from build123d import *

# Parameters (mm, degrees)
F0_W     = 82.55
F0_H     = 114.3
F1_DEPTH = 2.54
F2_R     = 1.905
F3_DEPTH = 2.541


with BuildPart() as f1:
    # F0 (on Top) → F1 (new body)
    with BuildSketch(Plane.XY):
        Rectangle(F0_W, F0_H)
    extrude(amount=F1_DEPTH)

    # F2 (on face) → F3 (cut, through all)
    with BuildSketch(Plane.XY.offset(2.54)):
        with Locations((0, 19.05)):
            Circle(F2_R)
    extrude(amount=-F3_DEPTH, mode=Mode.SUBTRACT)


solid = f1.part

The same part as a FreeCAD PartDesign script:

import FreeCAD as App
import Part
import Sketcher

V = App.Vector
Q = App.Units.Quantity

doc = App.newDocument("Part")
body = doc.addObject("PartDesign::Body", "Body")

sketch1 = doc.addObject("Sketcher::SketchObject", "Sketch")
body.addObject(sketch1)
sketch1.AttachmentSupport = (doc.XY_Plane, [""])
sketch1.MapMode = "FlatFace"
sketch1.addGeometry([
    Part.LineSegment(V(-41.275, 57.15, 0), V(-41.275, -57.15, 0)),
    Part.LineSegment(V(-41.275, -57.15, 0), V(41.275, -57.15, 0)),
    Part.LineSegment(V(41.275, -57.15, 0), V(41.275, 57.15, 0)),
    Part.LineSegment(V(41.275, 57.15, 0), V(-41.275, 57.15, 0)),
], False)
sketch1.addConstraint([
    Sketcher.Constraint("Coincident", 0, 2, 1, 1),
    Sketcher.Constraint("Coincident", 1, 2, 2, 1),
    Sketcher.Constraint("Coincident", 2, 2, 3, 1),
    Sketcher.Constraint("Coincident", 3, 2, 0, 1),
    Sketcher.Constraint("Vertical", 0),
    Sketcher.Constraint("Horizontal", 1),
    Sketcher.Constraint("Vertical", 2),
    Sketcher.Constraint("Horizontal", 3),
    Sketcher.Constraint("Symmetric", 0, 2, 2, 2, -1, 1),
    Sketcher.Constraint("DistanceY", 0, 2, 0, 1, Q("4.5 in")),
    Sketcher.Constraint("DistanceX", 1, 1, 1, 2, Q("3.25 in")),
])
pad1 = doc.addObject("PartDesign::Pad", "Pad")
body.addObject(pad1)
pad1.Profile = sketch1
pad1.Length = Q("0.1 in")

sketch2 = doc.addObject("Sketcher::SketchObject", "Sketch001")
body.addObject(sketch2)
sketch2.AttachmentSupport = (doc.XY_Plane, [""])
sketch2.MapMode = "FlatFace"
sketch2.AttachmentOffset = App.Placement(V(0, 0, 0.1 * 25.4), App.Rotation())
sketch2.addGeometry(Part.Circle(V(0, 19.05, 0), V(0, 0, 1), 1.905), False)
sketch2.addConstraint([
    Sketcher.Constraint("PointOnObject", 0, 3, -2),
    Sketcher.Constraint("Diameter", 0, Q("0.15 in")),
    Sketcher.Constraint("DistanceY", -1, 1, 0, 3, Q("0.75 in")),
])
pocket1 = doc.addObject("PartDesign::Pocket", "Pocket")
body.addObject(pocket1)
pocket1.Profile = sketch2
pocket1.Type = "ThroughAll"

doc.recompute()
